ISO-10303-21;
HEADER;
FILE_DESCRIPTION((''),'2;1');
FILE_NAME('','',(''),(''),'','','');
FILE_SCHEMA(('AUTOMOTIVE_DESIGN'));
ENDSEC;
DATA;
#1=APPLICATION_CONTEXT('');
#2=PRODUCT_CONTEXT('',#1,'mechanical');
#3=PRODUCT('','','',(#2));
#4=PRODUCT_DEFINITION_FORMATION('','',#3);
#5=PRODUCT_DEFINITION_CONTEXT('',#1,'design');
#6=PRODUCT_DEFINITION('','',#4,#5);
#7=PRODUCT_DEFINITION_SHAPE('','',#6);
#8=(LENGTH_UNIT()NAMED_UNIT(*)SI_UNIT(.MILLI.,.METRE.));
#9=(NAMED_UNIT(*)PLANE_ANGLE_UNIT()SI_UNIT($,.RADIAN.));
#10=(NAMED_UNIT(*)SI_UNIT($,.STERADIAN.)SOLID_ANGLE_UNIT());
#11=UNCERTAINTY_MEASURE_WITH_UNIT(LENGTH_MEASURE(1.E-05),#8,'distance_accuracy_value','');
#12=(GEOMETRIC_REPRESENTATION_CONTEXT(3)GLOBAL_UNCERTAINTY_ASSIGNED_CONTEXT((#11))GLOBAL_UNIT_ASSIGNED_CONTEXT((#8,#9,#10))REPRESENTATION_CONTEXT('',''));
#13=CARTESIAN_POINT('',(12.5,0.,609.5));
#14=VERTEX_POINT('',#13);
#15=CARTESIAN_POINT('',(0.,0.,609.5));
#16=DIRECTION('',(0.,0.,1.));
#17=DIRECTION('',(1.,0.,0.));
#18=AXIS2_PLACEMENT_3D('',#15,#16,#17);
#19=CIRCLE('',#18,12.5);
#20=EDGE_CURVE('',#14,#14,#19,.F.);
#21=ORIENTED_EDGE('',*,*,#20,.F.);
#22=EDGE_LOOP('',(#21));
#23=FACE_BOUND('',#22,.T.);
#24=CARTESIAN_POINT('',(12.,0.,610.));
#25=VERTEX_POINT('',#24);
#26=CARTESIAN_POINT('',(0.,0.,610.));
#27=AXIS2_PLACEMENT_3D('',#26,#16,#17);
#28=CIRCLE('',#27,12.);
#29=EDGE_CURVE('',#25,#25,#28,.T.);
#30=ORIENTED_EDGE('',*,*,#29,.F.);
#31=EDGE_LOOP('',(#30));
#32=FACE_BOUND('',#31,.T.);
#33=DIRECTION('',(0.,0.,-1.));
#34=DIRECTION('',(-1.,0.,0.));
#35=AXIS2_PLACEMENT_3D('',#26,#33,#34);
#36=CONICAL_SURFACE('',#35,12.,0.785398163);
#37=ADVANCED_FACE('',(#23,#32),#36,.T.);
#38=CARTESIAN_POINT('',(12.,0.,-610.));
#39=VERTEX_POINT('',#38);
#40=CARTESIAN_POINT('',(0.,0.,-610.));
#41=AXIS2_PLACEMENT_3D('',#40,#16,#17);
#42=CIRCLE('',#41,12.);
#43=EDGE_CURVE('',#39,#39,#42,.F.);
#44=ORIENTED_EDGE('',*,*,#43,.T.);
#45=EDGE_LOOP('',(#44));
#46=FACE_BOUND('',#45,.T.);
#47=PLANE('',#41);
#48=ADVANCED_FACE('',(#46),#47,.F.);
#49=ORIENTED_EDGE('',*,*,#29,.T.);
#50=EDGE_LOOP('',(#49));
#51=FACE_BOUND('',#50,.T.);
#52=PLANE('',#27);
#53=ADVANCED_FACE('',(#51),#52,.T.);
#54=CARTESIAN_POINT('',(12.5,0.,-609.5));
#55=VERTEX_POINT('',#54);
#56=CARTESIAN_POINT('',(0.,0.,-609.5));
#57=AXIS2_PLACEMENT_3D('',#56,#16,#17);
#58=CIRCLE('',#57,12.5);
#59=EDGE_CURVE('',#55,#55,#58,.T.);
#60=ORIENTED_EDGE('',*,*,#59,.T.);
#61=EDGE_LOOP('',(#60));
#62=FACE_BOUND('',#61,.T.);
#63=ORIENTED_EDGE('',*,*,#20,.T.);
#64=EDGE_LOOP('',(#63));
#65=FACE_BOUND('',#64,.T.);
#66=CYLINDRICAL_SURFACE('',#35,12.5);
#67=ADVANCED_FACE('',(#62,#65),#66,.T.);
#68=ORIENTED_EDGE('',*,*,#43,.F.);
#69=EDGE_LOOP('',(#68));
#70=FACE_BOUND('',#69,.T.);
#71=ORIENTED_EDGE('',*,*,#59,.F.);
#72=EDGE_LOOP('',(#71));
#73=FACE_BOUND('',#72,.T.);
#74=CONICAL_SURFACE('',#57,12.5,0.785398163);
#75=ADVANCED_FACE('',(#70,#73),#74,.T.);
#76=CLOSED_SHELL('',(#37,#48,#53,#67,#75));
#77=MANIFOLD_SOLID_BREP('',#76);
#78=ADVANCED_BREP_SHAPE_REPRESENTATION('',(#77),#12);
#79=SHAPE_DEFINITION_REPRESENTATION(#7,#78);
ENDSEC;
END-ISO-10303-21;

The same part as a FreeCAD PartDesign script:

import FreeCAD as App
import Part
import Sketcher

V = App.Vector


def edges_at(feature, points):
    """Names of the edges that pass closest to the given points."""
    edges = feature.Shape.Edges
    near = lambda p: min(range(len(edges)), key=lambda i: edges[i].distToShape(Part.Vertex(*p))[0])
    return sorted({f"Edge{near(p) + 1}" for p in points})

doc = App.newDocument("Part")
body = doc.addObject("PartDesign::Body", "Body")

sketch1 = body.newObject("Sketcher::SketchObject", "Sketch")
sketch1.AttachmentSupport = (doc.getObject("XY_Plane"), [""])
sketch1.MapMode = "FlatFace"
sketch1.addGeometry(Part.Circle(V(0, 0, 0), V(0, 0, 1), 12), False)
sketch1.addConstraint([
    Sketcher.Constraint("Coincident", 0, 3, -1, 1),
    Sketcher.Constraint("Diameter", 0, 25.0),
])
pad1 = body.newObject("PartDesign::Pad", "Pad")
pad1.Profile = sketch1
pad1.Type = "TwoLengths"
pad1.Length = 610
pad1.Length2 = 610
doc.recompute()

chamfer = body.newObject("PartDesign::Chamfer", "Chamfer")
chamfer.Base = (pad1, edges_at(pad1, [(-12.5, 0, -610), (-12.5, 0, 610)]))
chamfer.Size = 0.5

doc.recompute()
